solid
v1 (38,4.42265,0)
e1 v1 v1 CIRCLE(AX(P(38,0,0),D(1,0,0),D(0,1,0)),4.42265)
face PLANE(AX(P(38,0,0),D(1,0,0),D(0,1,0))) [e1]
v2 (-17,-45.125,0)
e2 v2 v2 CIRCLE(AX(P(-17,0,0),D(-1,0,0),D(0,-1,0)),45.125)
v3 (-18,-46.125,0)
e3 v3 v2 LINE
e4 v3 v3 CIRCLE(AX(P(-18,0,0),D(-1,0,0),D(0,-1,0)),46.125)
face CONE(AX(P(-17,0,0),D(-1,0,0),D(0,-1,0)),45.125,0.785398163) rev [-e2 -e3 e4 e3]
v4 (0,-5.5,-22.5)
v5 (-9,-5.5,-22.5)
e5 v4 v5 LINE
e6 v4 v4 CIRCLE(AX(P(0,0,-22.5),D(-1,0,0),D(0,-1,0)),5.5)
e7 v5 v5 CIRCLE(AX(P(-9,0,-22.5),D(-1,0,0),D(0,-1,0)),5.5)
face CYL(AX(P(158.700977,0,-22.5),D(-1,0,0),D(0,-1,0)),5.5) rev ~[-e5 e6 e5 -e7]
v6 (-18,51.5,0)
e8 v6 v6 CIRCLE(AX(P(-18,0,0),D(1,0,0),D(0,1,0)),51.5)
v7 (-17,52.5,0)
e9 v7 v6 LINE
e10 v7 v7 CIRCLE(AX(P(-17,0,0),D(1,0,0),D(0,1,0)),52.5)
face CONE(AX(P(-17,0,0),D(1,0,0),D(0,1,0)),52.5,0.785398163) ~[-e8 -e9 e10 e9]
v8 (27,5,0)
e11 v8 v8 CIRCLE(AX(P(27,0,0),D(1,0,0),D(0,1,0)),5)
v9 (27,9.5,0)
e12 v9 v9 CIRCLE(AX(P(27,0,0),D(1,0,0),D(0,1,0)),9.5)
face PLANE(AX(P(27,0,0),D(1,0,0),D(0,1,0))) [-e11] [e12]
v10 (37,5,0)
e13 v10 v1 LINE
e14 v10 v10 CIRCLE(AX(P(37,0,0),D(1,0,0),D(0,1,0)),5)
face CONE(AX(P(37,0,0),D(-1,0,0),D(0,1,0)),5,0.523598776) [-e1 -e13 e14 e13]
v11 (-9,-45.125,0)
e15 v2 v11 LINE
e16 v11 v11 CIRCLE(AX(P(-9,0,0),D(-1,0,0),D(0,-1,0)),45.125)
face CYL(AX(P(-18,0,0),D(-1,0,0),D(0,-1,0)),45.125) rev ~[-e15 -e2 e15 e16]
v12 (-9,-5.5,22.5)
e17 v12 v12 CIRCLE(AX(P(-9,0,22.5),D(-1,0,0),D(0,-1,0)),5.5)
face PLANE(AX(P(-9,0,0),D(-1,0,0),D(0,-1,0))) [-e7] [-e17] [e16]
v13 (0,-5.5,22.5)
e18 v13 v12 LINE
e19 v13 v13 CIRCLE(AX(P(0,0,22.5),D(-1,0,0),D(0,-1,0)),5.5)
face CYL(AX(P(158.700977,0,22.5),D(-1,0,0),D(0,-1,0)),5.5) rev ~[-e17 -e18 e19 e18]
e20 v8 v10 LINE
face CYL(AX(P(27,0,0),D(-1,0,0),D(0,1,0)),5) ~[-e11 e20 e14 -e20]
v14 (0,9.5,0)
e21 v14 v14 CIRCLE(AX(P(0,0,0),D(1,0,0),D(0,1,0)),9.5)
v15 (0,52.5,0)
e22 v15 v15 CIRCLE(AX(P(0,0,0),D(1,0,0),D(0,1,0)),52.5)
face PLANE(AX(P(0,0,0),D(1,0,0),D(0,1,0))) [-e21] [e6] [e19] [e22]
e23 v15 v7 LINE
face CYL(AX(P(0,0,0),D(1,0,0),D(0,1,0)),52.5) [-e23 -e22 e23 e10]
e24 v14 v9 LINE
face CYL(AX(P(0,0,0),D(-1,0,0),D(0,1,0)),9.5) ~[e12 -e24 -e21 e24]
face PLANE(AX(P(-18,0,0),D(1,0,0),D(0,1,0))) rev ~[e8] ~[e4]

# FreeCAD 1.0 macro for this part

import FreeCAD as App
import Part
import Sketcher
Q = App.Units.Quantity


def edges_at(feature, points):
    """Names of the edges that pass closest to the given points."""
    edges = feature.Shape.Edges
    near = lambda p: min(range(len(edges)), key=lambda i: edges[i].distToShape(Part.Vertex(*p))[0])
    return sorted({f"Edge{near(p) + 1}" for p in points})

doc = App.newDocument("Part")
body = doc.addObject("PartDesign::Body", "Body")

# Sketch on YZ plane
sketch1 = body.newObject("Sketcher::SketchObject", "Sketch")
sketch1.AttachmentSupport = (doc.getObject("YZ_Plane"), [""])
sketch1.MapMode = "FlatFace"
sketch1.addGeometry(Part.Circle(App.Vector(0, 0, 0), App.Vector(0, 0, 1), 52), False)
sketch1.addConstraint([
    Sketcher.Constraint("Coincident", 0, 3, -1, 1),
    Sketcher.Constraint("Diameter", 0, Q("105 mm")),
])
pad1 = body.newObject("PartDesign::Pad", "Pad")
pad1.Profile = sketch1
pad1.Length = 18
pad1.Reversed = True

# Sketch on YZ plane
sketch2 = body.newObject("Sketcher::SketchObject", "Sketch001")
sketch2.AttachmentSupport = (doc.getObject("YZ_Plane"), [""])
sketch2.MapMode = "FlatFace"
sketch2.AttachmentOffset = App.Placement(App.Vector(0, 0, -18), App.Rotation())
sketch2.addGeometry(Part.Circle(App.Vector(0, 0, 0), App.Vector(0, 0, 1), 45), False)
sketch2.addConstraint([
    Sketcher.Constraint("Coincident", 0, 3, -1, 1),
    Sketcher.Constraint("Diameter", 0, Q("90.25 mm")),
])
pocket1 = body.newObject("PartDesign::Pocket", "Pocket")
pocket1.Profile = sketch2
pocket1.Length = 9
pocket1.Reversed = True
doc.recompute()

chamfer = body.newObject("PartDesign::Chamfer", "Chamfer")
chamfer.Base = (pocket1, edges_at(pocket1, [(-18, -52.5, 0), (-18, 45.125, 0)]))
chamfer.Size = 1

# Sketch on YZ plane
sketch3 = body.newObject("Sketcher::SketchObject", "Sketch002")
sketch3.AttachmentSupport = (doc.getObject("YZ_Plane"), [""])
sketch3.MapMode = "FlatFace"
sketch3.addGeometry(Part.Circle(App.Vector(0, 0, 0), App.Vector(0, 0, 1), 10), False)
sketch3.addConstraint([
    Sketcher.Constraint("Coincident", 0, 3, -1, 1),
    Sketcher.Constraint("Diameter", 0, Q("19 mm")),
])
pad2 = body.newObject("PartDesign::Pad", "Pad001")
pad2.Profile = sketch3
pad2.Length = 27

# Sketch on YZ plane
sketch4 = body.newObject("Sketcher::SketchObject", "Sketch003")
sketch4.AttachmentSupport = (doc.getObject("YZ_Plane"), [""])
sketch4.MapMode = "FlatFace"
sketch4.AttachmentOffset = App.Placement(App.Vector(0, 0, 27), App.Rotation())
sketch4.addGeometry(Part.Circle(App.Vector(0, 0, 0), App.Vector(0, 0, 1), 5), False)
sketch4.addConstraint([
    Sketcher.Constraint("Coincident", 0, 3, -1, 1),
    Sketcher.Constraint("Diameter", 0, Q("10 mm")),
])
pad3 = body.newObject("PartDesign::Pad", "Pad002")
pad3.Profile = sketch4
pad3.Length = 11
doc.recompute()

chamfer2 = body.newObject("PartDesign::Chamfer", "Chamfer001")
chamfer2.Base = (pad3, edges_at(pad3, [(38, -5, 0)]))
chamfer2.ChamferType = "Two distances"
chamfer2.Size = 1
chamfer2.Size2 = 0.57735

# Sketch on YZ plane
sketch5 = body.newObject("Sketcher::SketchObject", "Sketch004")
sketch5.AttachmentSupport = (doc.getObject("YZ_Plane"), [""])
sketch5.MapMode = "FlatFace"
sketch5.addGeometry([
    Part.Circle(App.Vector(0, -22, 0), App.Vector(0, 0, 1), 6),
    Part.Circle(App.Vector(0, 22, 0), App.Vector(0, 0, 1), 6),
], False)
sketch5.addConstraint([
    Sketcher.Constraint("Equal", 0, 1),
    Sketcher.Constraint("Symmetric", 0, 3, 1, 3, -1, 1),
    Sketcher.Constraint("PointOnObject", 0, 3, -2),
    Sketcher.Constraint("Diameter", 0, Q("11 mm")),
    Sketcher.Constraint("DistanceY", 0, 3, 1, 3, Q("45 mm")),
])
doc.recompute()
hole = body.newObject("PartDesign::Hole", "Hole")
hole.Profile = sketch5
hole.ThreadType = "None"
hole.Diameter = 11
hole.DepthType = "ThroughAll"

doc.recompute()
